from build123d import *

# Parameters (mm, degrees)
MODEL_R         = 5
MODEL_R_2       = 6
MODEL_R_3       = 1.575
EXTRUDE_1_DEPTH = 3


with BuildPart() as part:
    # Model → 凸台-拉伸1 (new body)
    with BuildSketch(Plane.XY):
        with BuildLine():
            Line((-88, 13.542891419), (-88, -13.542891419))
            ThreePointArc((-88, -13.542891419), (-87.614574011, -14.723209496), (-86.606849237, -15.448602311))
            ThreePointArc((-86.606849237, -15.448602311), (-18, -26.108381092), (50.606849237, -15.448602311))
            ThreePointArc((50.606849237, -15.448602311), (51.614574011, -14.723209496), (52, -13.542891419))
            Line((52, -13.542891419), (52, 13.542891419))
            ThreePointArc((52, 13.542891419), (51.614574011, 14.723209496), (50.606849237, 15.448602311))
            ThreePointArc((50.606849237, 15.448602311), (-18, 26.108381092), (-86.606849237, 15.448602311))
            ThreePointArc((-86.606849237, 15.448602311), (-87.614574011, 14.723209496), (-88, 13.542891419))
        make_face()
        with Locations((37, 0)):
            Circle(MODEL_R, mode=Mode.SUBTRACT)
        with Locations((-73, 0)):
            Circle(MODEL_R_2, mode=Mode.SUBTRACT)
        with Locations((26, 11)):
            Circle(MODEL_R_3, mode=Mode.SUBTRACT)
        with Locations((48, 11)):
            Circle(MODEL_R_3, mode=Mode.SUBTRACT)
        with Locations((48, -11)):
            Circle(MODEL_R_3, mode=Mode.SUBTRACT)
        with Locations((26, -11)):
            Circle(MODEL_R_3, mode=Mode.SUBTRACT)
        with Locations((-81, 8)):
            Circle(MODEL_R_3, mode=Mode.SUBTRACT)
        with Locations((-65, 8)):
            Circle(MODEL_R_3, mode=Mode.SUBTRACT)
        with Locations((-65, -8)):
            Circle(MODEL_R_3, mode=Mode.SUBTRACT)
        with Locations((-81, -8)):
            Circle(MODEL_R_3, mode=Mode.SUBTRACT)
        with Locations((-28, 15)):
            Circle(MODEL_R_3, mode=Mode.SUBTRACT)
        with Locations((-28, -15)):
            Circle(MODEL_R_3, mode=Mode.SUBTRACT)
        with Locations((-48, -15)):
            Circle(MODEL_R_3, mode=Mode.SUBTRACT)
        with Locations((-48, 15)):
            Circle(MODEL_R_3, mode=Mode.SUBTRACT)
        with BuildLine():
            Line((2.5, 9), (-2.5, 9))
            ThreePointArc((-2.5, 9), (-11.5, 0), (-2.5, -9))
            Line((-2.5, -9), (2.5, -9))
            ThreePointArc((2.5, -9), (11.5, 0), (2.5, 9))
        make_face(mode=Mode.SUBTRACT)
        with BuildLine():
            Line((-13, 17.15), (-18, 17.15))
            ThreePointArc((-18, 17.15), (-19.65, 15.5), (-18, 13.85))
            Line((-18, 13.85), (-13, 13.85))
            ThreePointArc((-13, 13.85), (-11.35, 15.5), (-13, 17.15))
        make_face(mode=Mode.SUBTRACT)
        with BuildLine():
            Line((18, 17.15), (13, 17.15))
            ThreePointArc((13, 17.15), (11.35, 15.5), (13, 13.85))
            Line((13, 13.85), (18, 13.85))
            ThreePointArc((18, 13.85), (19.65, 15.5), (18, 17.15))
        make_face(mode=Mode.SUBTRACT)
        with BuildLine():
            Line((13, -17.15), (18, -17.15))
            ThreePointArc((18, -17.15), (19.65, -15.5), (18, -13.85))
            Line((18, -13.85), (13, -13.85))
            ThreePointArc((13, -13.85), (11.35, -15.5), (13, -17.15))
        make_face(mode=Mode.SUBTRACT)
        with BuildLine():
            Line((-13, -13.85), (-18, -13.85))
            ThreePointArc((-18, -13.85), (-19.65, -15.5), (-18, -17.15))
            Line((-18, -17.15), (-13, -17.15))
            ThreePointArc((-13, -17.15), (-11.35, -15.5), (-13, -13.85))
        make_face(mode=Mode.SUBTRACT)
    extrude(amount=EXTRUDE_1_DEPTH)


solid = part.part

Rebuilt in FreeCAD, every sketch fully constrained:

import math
import FreeCAD as App
import Part
import Sketcher
Q = App.Units.Quantity

doc = App.newDocument("Part")
body = doc.addObject("PartDesign::Body", "Body")

sketch1 = doc.addObject("Sketcher::SketchObject", "Sketch")
body.addObject(sketch1)
sketch1.AttachmentSupport = (doc.XY_Plane, [""])
sketch1.MapMode = "FlatFace"
sketch1.addGeometry([
    Part.LineSegment(App.Vector(-88, 13.5, 0), App.Vector(-88, -13.5, 0)),
    Part.ArcOfCircle(Part.Circle(App.Vector(-86, -13.5, 0), App.Vector(0, 0, 1), 2), math.radians(180), math.radians(252)),
    Part.ArcOfCircle(Part.Circle(App.Vector(-18, 200, 0), App.Vector(0, 0, 1), 226.1), math.radians(-108), math.radians(-72)),
    Part.ArcOfCircle(Part.Circle(App.Vector(50, -13.5, 0), App.Vector(0, 0, 1), 2), math.radians(-72), math.radians(0)),
    Part.LineSegment(App.Vector(52, -13.5, 0), App.Vector(52, 13.5, 0)),
    Part.ArcOfCircle(Part.Circle(App.Vector(50, 13.5, 0), App.Vector(0, 0, 1), 2), math.radians(0), math.radians(72)),
    Part.ArcOfCircle(Part.Circle(App.Vector(-18, -200, 0), App.Vector(0, 0, 1), 226.1), math.radians(72), math.radians(108)),
    Part.ArcOfCircle(Part.Circle(App.Vector(-86, 13.5, 0), App.Vector(0, 0, 1), 2), math.radians(108), math.radians(180)),
    Part.Circle(App.Vector(-48, -15, 0), App.Vector(0, 0, 1), 1.6),
    Part.Circle(App.Vector(-28, -15, 0), App.Vector(0, 0, 1), 1.6),
    Part.Circle(App.Vector(-81, -8, 0), App.Vector(0, 0, 1), 1.6),
    Part.Circle(App.Vector(-65, -8, 0), App.Vector(0, 0, 1), 1.6),
    Part.LineSegment(App.Vector(-18, -13.8, 0), App.Vector(-13, -13.8, 0)),
    Part.ArcOfCircle(Part.Circle(App.Vector(-13, -15.5, 0), App.Vector(0, 0, 1), 1.6), math.radians(-90), math.radians(90)),
    Part.LineSegment(App.Vector(-13, -17.1, 0), App.Vector(-18, -17.1, 0)),
    Part.ArcOfCircle(Part.Circle(App.Vector(-18, -15.5, 0), App.Vector(0, 0, 1), 1.6), math.radians(90), math.radians(270)),
    Part.LineSegment(App.Vector(18, -17.1, 0), App.Vector(13, -17.1, 0)),
    Part.ArcOfCircle(Part.Circle(App.Vector(13, -15.5, 0), App.Vector(0, 0, 1), 1.6), math.radians(90), math.radians(270)),
    Part.LineSegment(App.Vector(13, -13.8, 0), App.Vector(18, -13.8, 0)),
    Part.ArcOfCircle(Part.Circle(App.Vector(18, -15.5, 0), App.Vector(0, 0, 1), 1.6), math.radians(-90), math.radians(90)),
    Part.Circle(App.Vector(26, -11, 0), App.Vector(0, 0, 1), 1.6),
    Part.Circle(App.Vector(48, -11, 0), App.Vector(0, 0, 1), 1.6),
    Part.Circle(App.Vector(-73, 0, 0), App.Vector(0, 0, 1), 6),
    Part.Circle(App.Vector(-81, 8, 0), App.Vector(0, 0, 1), 1.6),
    Part.Circle(App.Vector(-65, 8, 0), App.Vector(0, 0, 1), 1.6),
    Part.Circle(App.Vector(-48, 15, 0), App.Vector(0, 0, 1), 1.6),
    Part.Circle(App.Vector(-28, 15, 0), App.Vector(0, 0, 1), 1.6),
    Part.LineSegment(App.Vector(-2.5, 9, 0), App.Vector(2.5, 9, 0)),
    Part.ArcOfCircle(Part.Circle(App.Vector(2.5, 0, 0), App.Vector(0, 0, 1), 9), math.radians(-90), math.radians(90)),
    Part.LineSegment(App.Vector(2.5, -9, 0), App.Vector(-2.5, -9, 0)),
    Part.ArcOfCircle(Part.Circle(App.Vector(-2.5, 0, 0), App.Vector(0, 0, 1), 9), math.radians(90), math.radians(270)),
    Part.Circle(App.Vector(37, 0, 0), App.Vector(0, 0, 1), 5),
    Part.LineSegment(App.Vector(-18, 17.1, 0), App.Vector(-13, 17.1, 0)),
    Part.ArcOfCircle(Part.Circle(App.Vector(-13, 15.5, 0), App.Vector(0, 0, 1), 1.6), math.radians(-90), math.radians(90)),
    Part.LineSegment(App.Vector(-13, 13.8, 0), App.Vector(-18, 13.8, 0)),
    Part.ArcOfCircle(Part.Circle(App.Vector(-18, 15.5, 0), App.Vector(0, 0, 1), 1.6), math.radians(90), math.radians(270)),
    Part.LineSegment(App.Vector(13, 17.1, 0), App.Vector(18, 17.1, 0)),
    Part.ArcOfCircle(Part.Circle(App.Vector(18, 15.5, 0), App.Vector(0, 0, 1), 1.6), math.radians(-90), math.radians(90)),
    Part.LineSegment(App.Vector(18, 13.8, 0), App.Vector(13, 13.8, 0)),
    Part.ArcOfCircle(Part.Circle(App.Vector(13, 15.5, 0), App.Vector(0, 0, 1), 1.6), math.radians(90), math.radians(270)),
    Part.Circle(App.Vector(26, 11, 0), App.Vector(0, 0, 1), 1.6),
    Part.Circle(App.Vector(48, 11, 0), App.Vector(0, 0, 1), 1.6),
], False)
sketch1.addConstraint([
    Sketcher.Constraint("Tangent", 0, 2, 1, 1),
    Sketcher.Constraint("Tangent", 1, 2, 2, 1),
    Sketcher.Constraint("Tangent", 2, 2, 3, 1),
    Sketcher.Constraint("Tangent", 3, 2, 4, 1),
    Sketcher.Constraint("Tangent", 4, 2, 5, 1),
    Sketcher.Constraint("Tangent", 5, 2, 6, 1),
    Sketcher.Constraint("Tangent", 6, 2, 7, 1),
    Sketcher.Constraint("Tangent", 7, 2, 0, 1),
    Sketcher.Constraint("Tangent", 12, 2, 13, 2),
    Sketcher.Constraint("Tangent", 13, 1, 14, 1),
    Sketcher.Constraint("Tangent", 14, 2, 15, 2),
    Sketcher.Constraint("Tangent", 15, 1, 12, 1),
    Sketcher.Constraint("Tangent", 16, 2, 17, 2),
    Sketcher.Constraint("Tangent", 17, 1, 18, 1),
    Sketcher.Constraint("Tangent", 18, 2, 19, 2),
    Sketcher.Constraint("Tangent", 19, 1, 16, 1),
    Sketcher.Constraint("Tangent", 27, 2, 28, 2),
    Sketcher.Constraint("Tangent", 28, 1, 29, 1),
    Sketcher.Constraint("Tangent", 29, 2, 30, 2),
    Sketcher.Constraint("Tangent", 30, 1, 27, 1),
    Sketcher.Constraint("Tangent", 32, 2, 33, 2),
    Sketcher.Constraint("Tangent", 33, 1, 34, 1),
    Sketcher.Constraint("Tangent", 34, 2, 35, 2),
    Sketcher.Constraint("Tangent", 35, 1, 32, 1),
    Sketcher.Constraint("Tangent", 36, 2, 37, 2),
    Sketcher.Constraint("Tangent", 37, 1, 38, 1),
    Sketcher.Constraint("Tangent", 38, 2, 39, 2),
    Sketcher.Constraint("Tangent", 39, 1, 36, 1),
    Sketcher.Constraint("Vertical", 0),
    Sketcher.Constraint("Vertical", 4),
    Sketcher.Constraint("Horizontal", 12),
    Sketcher.Constraint("Horizontal", 14),
    Sketcher.Constraint("Horizontal", 16),
    Sketcher.Constraint("Horizontal", 18),
    Sketcher.Constraint("Horizontal", 27),
    Sketcher.Constraint("Horizontal", 29),
    Sketcher.Constraint("Horizontal", 32),
    Sketcher.Constraint("Horizontal", 34),
    Sketcher.Constraint("Horizontal", 36),
    Sketcher.Constraint("Horizontal", 38),
    Sketcher.Constraint("Equal", 1, 3),
    Sketcher.Constraint("Equal", 3, 5),
    Sketcher.Constraint("Equal", 2, 6),
    Sketcher.Constraint("Equal", 5, 7),
    Sketcher.Constraint("Equal", 8, 9),
    Sketcher.Constraint("Equal", 9, 10),
    Sketcher.Constraint("Equal", 10, 11),
    Sketcher.Constraint("Equal", 15, 17),
    Sketcher.Constraint("Equal", 11, 20),
    Sketcher.Constraint("Equal", 20, 21),
    Sketcher.Constraint("Equal", 21, 23),
    Sketcher.Constraint("Equal", 23, 24),
    Sketcher.Constraint("Equal", 24, 25),
    Sketcher.Constraint("Equal", 25, 26),
    Sketcher.Constraint("Equal", 19, 33),
    Sketcher.Constraint("Equal", 35, 37),
    Sketcher.Constraint("Equal", 26, 40),
    Sketcher.Constraint("Equal", 40, 41),
    Sketcher.Constraint("Symmetric", 28, 3, 30, 3, -1, 1),
    Sketcher.Constraint("Symmetric", 17, 3, 33, 3, -1, 1),
    Sketcher.Constraint("Symmetric", 15, 3, 37, 3, -1, 1),
    Sketcher.Constraint("Symmetric", 13, 3, 17, 3, -2),
    Sketcher.Constraint("Symmetric", 2, 3, 6, 3, -1),
    Sketcher.Constraint("Symmetric", 10, 3, 23, 3, -1),
    Sketcher.Constraint("Symmetric", 11, 3, 24, 3, -1),
    Sketcher.Constraint("Symmetric", 8, 3, 25, 3, -1),
    Sketcher.Constraint("Symmetric", 9, 3, 26, 3, -1),
    Sketcher.Constraint("Symmetric", 20, 3, 40, 3, -1),
    Sketcher.Constraint("Symmetric", 21, 3, 41, 3, -1),
    Sketcher.Constraint("PointOnObject", 22, 3, -1),
    Sketcher.Constraint("PointOnObject", 31, 3, -1),
    Sketcher.Constraint("Horizontal", 1, 3, 3, 3),
    Sketcher.Constraint("Horizontal", 8, 3, 9, 3),
    Sketcher.Constraint("Horizontal", 10, 3, 11, 3),
    Sketcher.Constraint("Horizontal", 20, 3, 21, 3),
    Sketcher.Constraint("Vertical", 6, 3, 15, 3),
    Sketcher.Constraint("Vertical", 15, 3, 35, 3),
    Sketcher.Constraint("Vertical", 19, 3, 37, 3),
    Sketcher.Constraint("Vertical", 17, 3, 39, 3),
    Sketcher.Constraint("Equal", 18, 27),
    Sketcher.Constraint("Diameter", 22, Q("12 mm")),
    Sketcher.Constraint("Diameter", 31, Q("10 mm")),
    Sketcher.Constraint("Radius", 1, Q("2 mm")),
    Sketcher.Constraint("Radius", 28, Q("9 mm")),
    Sketcher.Constraint("Diameter", 8, Q("3.15 mm")),
    Sketcher.Constraint("DistanceX", 12, 1, 12, 2, Q("5 mm")),
    Sketcher.Constraint("Radius", 13, Q("1.65 mm")),
    Sketcher.Constraint("DistanceX", 1, 3, -1, 1, Q("86 mm")),
    Sketcher.Constraint("DistanceX", 2, 3, -1, 1, Q("18 mm")),
    Sketcher.Constraint("DistanceY", -1, 1, 2, 3, Q("200 mm")),
    Sketcher.Constraint("DistanceX", 8, 3, -1, 1, Q("48 mm")),
    Sketcher.Constraint("DistanceY", 8, 3, -1, 1, Q("15 mm")),
    Sketcher.Constraint("DistanceX", 9, 3, -1, 1, Q("28 mm")),
    Sketcher.Constraint("DistanceX", 10, 3, -1, 1, Q("81 mm")),
    Sketcher.Constraint("DistanceY", 10, 3, -1, 1, Q("8 mm")),
    Sketcher.Constraint("DistanceX", 11, 3, -1, 1, Q("65 mm")),
    Sketcher.Constraint("DistanceX", -1, 1, 20, 3, Q("26 mm")),
    Sketcher.Constraint("DistanceY", 20, 3, -1, 1, Q("11 mm")),
    Sketcher.Constraint("DistanceX", -1, 1, 21, 3, Q("48 mm")),
    Sketcher.Constraint("DistanceX", 22, 3, -1, 1, Q("73 mm")),
    Sketcher.Constraint("DistanceX", -1, 1, 31, 3, Q("37 mm")),
    Sketcher.Constraint("DistanceY", 13, 3, 33, 3, Q("31 mm")),
    Sketcher.Constraint("Radius", 2, Q("226.108381 mm")),
])
pad1 = doc.addObject("PartDesign::Pad", "Pad")
body.addObject(pad1)
pad1.Profile = sketch1
pad1.Length = 3

doc.recompute()
